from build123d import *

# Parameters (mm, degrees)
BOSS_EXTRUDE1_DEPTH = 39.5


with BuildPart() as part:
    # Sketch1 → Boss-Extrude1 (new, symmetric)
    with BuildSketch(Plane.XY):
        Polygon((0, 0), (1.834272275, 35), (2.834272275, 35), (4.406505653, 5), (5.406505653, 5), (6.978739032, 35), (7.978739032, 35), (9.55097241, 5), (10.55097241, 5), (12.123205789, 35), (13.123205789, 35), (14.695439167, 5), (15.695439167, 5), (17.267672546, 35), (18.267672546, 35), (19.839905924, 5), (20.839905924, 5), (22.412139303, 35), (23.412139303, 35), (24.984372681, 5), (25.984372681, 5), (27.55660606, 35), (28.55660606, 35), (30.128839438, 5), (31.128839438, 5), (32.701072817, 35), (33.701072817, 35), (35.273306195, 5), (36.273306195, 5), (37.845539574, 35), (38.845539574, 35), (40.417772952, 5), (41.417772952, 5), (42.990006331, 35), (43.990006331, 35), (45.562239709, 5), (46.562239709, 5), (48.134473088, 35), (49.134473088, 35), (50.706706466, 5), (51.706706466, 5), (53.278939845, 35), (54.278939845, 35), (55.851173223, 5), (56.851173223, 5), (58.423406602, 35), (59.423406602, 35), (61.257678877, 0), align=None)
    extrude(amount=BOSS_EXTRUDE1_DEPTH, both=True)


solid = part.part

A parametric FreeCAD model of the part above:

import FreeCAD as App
import Part
import Sketcher
from FreeCAD import Vector
Q = App.Units.Quantity


def add_polygon(sketch, points):
    """Adds a closed chain of lines whose ends are joined by coincident constraints."""
    first, n = sketch.GeometryCount, len(points)
    for a, b in zip(points, points[1:] + points[:1]):
        sketch.addGeometry(Part.LineSegment(App.Vector(*a, 0), App.Vector(*b, 0)), False)
    for i in range(n):
        sketch.addConstraint(Sketcher.Constraint("Coincident", first + i, 2, first + (i + 1) % n, 1))

doc = App.newDocument("Part")
params = doc.addObject("Spreadsheet::Sheet", "Params")
for row, (alias, value) in enumerate([
    ("sketch1_width", "1 mm"),
    ("pad1_length", "79 mm"),
], start=1):
    params.set(f"A{row}", alias)
    params.set(f"B{row}", "=" + value)
    params.setAlias(f"B{row}", alias)

body = doc.addObject("PartDesign::Body", "Body")

# Sketch on XY plane
sketch1 = doc.addObject("Sketcher::SketchObject", "Sketch")
body.addObject(sketch1)
sketch1.AttachmentSupport = (doc.XY_Plane, [""])
sketch1.MapMode = "FlatFace"
add_polygon(sketch1, [(1.8, 35), (0, 0), (61.3, 0), (59.4, 35), (58.4, 35), (56.9, 5), (55.9, 5), (54.3, 35), (53.3, 35), (51.7, 5), (50.7, 5), (49.1, 35), (48.1, 35), (46.6, 5), (45.6, 5), (44, 35), (43, 35), (41.4, 5), (40.4, 5), (38.8, 35), (37.8, 35), (36.3, 5), (35.3, 5), (33.7, 35), (32.7, 35), (31.1, 5), (30.1, 5), (28.6, 35), (27.6, 35), (26, 5), (25, 5), (23.4, 35), (22.4, 35), (20.8, 5), (19.8, 5), (18.3, 35), (17.3, 35), (15.7, 5), (14.7, 5), (13.1, 35), (12.1, 35), (10.6, 5), (9.6, 5), (8, 35), (7, 35), (5.4, 5), (4.4, 5), (2.8, 35)])  # lines 0-47
sketch1.addConstraint([
    Sketcher.Constraint("Horizontal", 1),
    Sketcher.Constraint("Horizontal", 3),
    Sketcher.Constraint("Horizontal", 5),
    Sketcher.Constraint("Horizontal", 7),
    Sketcher.Constraint("Horizontal", 9),
    Sketcher.Constraint("Horizontal", 11),
    Sketcher.Constraint("Horizontal", 13),
    Sketcher.Constraint("Horizontal", 15),
    Sketcher.Constraint("Horizontal", 17),
    Sketcher.Constraint("Horizontal", 19),
    Sketcher.Constraint("Horizontal", 21),
    Sketcher.Constraint("Horizontal", 23),
    Sketcher.Constraint("Horizontal", 25),
    Sketcher.Constraint("Horizontal", 27),
    Sketcher.Constraint("Horizontal", 29),
    Sketcher.Constraint("Horizontal", 31),
    Sketcher.Constraint("Horizontal", 33),
    Sketcher.Constraint("Horizontal", 35),
    Sketcher.Constraint("Horizontal", 37),
    Sketcher.Constraint("Horizontal", 39),
    Sketcher.Constraint("Horizontal", 41),
    Sketcher.Constraint("Horizontal", 43),
    Sketcher.Constraint("Horizontal", 45),
    Sketcher.Constraint("Horizontal", 47),
    Sketcher.Constraint("Coincident", 0, 2, -1, 1),
    Sketcher.Constraint("Parallel", 0, 4),
    Sketcher.Constraint("Parallel", 2, 6),
    Sketcher.Constraint("Parallel", 4, 8),
    Sketcher.Constraint("Parallel", 6, 10),
    Sketcher.Constraint("Parallel", 8, 12),
    Sketcher.Constraint("Parallel", 10, 14),
    Sketcher.Constraint("Parallel", 12, 16),
    Sketcher.Constraint("Parallel", 14, 18),
    Sketcher.Constraint("Parallel", 16, 20),
    Sketcher.Constraint("Parallel", 18, 22),
    Sketcher.Constraint("Parallel", 20, 24),
    Sketcher.Constraint("Parallel", 22, 26),
    Sketcher.Constraint("Parallel", 24, 28),
    Sketcher.Constraint("Parallel", 26, 30),
    Sketcher.Constraint("Parallel", 28, 32),
    Sketcher.Constraint("Parallel", 30, 34),
    Sketcher.Constraint("Parallel", 32, 36),
    Sketcher.Constraint("Parallel", 34, 38),
    Sketcher.Constraint("Parallel", 36, 40),
    Sketcher.Constraint("Parallel", 38, 42),
    Sketcher.Constraint("Parallel", 40, 44),
    Sketcher.Constraint("Parallel", 42, 46),
    Sketcher.Constraint("Horizontal", 3, 2, 6, 2),
    Sketcher.Constraint("Horizontal", 5, 2, 8, 2),
    Sketcher.Constraint("Horizontal", 7, 2, 10, 2),
    Sketcher.Constraint("Horizontal", 9, 2, 12, 2),
    Sketcher.Constraint("Horizontal", 11, 2, 14, 2),
    Sketcher.Constraint("Horizontal", 13, 2, 16, 2),
    Sketcher.Constraint("Horizontal", 15, 2, 18, 2),
    Sketcher.Constraint("Horizontal", 17, 2, 20, 2),
    Sketcher.Constraint("Horizontal", 19, 2, 22, 2),
    Sketcher.Constraint("Horizontal", 21, 2, 24, 2),
    Sketcher.Constraint("Horizontal", 23, 2, 26, 2),
    Sketcher.Constraint("Horizontal", 25, 2, 28, 2),
    Sketcher.Constraint("Horizontal", 27, 2, 30, 2),
    Sketcher.Constraint("Horizontal", 29, 2, 32, 2),
    Sketcher.Constraint("Horizontal", 31, 2, 34, 2),
    Sketcher.Constraint("Horizontal", 33, 2, 36, 2),
    Sketcher.Constraint("Horizontal", 35, 2, 38, 2),
    Sketcher.Constraint("Horizontal", 37, 2, 40, 2),
    Sketcher.Constraint("Horizontal", 39, 2, 42, 2),
    Sketcher.Constraint("Horizontal", 41, 2, 44, 2),
    Sketcher.Constraint("Horizontal", 43, 2, 46, 2),
    Sketcher.Constraint("Equal", 3, 5),
    Sketcher.Constraint("Equal", 5, 7),
    Sketcher.Constraint("Equal", 7, 9),
    Sketcher.Constraint("Equal", 9, 11),
    Sketcher.Constraint("Equal", 11, 13),
    Sketcher.Constraint("Equal", 13, 15),
    Sketcher.Constraint("Equal", 15, 17),
    Sketcher.Constraint("Equal", 17, 19),
    Sketcher.Constraint("Equal", 19, 21),
    Sketcher.Constraint("Equal", 21, 23),
    Sketcher.Constraint("Equal", 23, 25),
    Sketcher.Constraint("Equal", 25, 27),
    Sketcher.Constraint("Equal", 27, 29),
    Sketcher.Constraint("Equal", 29, 31),
    Sketcher.Constraint("Equal", 31, 33),
    Sketcher.Constraint("Equal", 33, 35),
    Sketcher.Constraint("Equal", 35, 37),
    Sketcher.Constraint("Equal", 37, 39),
    Sketcher.Constraint("Equal", 39, 41),
    Sketcher.Constraint("Equal", 41, 43),
    Sketcher.Constraint("Equal", 43, 45),
    Sketcher.Constraint("Equal", 45, 47),
    Sketcher.Constraint("Equal", 0, 2),
    Sketcher.Constraint("DistanceX", 3, 2, 3, 1, 1.0),
    Sketcher.Constraint("Angle", 0, Q("-93 deg")),
    Sketcher.Constraint("DistanceY", -1, 1, 2, 2, 35.0),
    Sketcher.Constraint("DistanceY", -1, 1, 4, 2, 5.0),
])
sketch1.setExpression("Constraints[139]", "Params.sketch1_width")
pad1 = doc.addObject("PartDesign::Pad", "Pad")
body.addObject(pad1)
pad1.Profile = sketch1
pad1.setExpression("Length", "Params.pad1_length")
pad1.Midplane = True

doc.recompute()
